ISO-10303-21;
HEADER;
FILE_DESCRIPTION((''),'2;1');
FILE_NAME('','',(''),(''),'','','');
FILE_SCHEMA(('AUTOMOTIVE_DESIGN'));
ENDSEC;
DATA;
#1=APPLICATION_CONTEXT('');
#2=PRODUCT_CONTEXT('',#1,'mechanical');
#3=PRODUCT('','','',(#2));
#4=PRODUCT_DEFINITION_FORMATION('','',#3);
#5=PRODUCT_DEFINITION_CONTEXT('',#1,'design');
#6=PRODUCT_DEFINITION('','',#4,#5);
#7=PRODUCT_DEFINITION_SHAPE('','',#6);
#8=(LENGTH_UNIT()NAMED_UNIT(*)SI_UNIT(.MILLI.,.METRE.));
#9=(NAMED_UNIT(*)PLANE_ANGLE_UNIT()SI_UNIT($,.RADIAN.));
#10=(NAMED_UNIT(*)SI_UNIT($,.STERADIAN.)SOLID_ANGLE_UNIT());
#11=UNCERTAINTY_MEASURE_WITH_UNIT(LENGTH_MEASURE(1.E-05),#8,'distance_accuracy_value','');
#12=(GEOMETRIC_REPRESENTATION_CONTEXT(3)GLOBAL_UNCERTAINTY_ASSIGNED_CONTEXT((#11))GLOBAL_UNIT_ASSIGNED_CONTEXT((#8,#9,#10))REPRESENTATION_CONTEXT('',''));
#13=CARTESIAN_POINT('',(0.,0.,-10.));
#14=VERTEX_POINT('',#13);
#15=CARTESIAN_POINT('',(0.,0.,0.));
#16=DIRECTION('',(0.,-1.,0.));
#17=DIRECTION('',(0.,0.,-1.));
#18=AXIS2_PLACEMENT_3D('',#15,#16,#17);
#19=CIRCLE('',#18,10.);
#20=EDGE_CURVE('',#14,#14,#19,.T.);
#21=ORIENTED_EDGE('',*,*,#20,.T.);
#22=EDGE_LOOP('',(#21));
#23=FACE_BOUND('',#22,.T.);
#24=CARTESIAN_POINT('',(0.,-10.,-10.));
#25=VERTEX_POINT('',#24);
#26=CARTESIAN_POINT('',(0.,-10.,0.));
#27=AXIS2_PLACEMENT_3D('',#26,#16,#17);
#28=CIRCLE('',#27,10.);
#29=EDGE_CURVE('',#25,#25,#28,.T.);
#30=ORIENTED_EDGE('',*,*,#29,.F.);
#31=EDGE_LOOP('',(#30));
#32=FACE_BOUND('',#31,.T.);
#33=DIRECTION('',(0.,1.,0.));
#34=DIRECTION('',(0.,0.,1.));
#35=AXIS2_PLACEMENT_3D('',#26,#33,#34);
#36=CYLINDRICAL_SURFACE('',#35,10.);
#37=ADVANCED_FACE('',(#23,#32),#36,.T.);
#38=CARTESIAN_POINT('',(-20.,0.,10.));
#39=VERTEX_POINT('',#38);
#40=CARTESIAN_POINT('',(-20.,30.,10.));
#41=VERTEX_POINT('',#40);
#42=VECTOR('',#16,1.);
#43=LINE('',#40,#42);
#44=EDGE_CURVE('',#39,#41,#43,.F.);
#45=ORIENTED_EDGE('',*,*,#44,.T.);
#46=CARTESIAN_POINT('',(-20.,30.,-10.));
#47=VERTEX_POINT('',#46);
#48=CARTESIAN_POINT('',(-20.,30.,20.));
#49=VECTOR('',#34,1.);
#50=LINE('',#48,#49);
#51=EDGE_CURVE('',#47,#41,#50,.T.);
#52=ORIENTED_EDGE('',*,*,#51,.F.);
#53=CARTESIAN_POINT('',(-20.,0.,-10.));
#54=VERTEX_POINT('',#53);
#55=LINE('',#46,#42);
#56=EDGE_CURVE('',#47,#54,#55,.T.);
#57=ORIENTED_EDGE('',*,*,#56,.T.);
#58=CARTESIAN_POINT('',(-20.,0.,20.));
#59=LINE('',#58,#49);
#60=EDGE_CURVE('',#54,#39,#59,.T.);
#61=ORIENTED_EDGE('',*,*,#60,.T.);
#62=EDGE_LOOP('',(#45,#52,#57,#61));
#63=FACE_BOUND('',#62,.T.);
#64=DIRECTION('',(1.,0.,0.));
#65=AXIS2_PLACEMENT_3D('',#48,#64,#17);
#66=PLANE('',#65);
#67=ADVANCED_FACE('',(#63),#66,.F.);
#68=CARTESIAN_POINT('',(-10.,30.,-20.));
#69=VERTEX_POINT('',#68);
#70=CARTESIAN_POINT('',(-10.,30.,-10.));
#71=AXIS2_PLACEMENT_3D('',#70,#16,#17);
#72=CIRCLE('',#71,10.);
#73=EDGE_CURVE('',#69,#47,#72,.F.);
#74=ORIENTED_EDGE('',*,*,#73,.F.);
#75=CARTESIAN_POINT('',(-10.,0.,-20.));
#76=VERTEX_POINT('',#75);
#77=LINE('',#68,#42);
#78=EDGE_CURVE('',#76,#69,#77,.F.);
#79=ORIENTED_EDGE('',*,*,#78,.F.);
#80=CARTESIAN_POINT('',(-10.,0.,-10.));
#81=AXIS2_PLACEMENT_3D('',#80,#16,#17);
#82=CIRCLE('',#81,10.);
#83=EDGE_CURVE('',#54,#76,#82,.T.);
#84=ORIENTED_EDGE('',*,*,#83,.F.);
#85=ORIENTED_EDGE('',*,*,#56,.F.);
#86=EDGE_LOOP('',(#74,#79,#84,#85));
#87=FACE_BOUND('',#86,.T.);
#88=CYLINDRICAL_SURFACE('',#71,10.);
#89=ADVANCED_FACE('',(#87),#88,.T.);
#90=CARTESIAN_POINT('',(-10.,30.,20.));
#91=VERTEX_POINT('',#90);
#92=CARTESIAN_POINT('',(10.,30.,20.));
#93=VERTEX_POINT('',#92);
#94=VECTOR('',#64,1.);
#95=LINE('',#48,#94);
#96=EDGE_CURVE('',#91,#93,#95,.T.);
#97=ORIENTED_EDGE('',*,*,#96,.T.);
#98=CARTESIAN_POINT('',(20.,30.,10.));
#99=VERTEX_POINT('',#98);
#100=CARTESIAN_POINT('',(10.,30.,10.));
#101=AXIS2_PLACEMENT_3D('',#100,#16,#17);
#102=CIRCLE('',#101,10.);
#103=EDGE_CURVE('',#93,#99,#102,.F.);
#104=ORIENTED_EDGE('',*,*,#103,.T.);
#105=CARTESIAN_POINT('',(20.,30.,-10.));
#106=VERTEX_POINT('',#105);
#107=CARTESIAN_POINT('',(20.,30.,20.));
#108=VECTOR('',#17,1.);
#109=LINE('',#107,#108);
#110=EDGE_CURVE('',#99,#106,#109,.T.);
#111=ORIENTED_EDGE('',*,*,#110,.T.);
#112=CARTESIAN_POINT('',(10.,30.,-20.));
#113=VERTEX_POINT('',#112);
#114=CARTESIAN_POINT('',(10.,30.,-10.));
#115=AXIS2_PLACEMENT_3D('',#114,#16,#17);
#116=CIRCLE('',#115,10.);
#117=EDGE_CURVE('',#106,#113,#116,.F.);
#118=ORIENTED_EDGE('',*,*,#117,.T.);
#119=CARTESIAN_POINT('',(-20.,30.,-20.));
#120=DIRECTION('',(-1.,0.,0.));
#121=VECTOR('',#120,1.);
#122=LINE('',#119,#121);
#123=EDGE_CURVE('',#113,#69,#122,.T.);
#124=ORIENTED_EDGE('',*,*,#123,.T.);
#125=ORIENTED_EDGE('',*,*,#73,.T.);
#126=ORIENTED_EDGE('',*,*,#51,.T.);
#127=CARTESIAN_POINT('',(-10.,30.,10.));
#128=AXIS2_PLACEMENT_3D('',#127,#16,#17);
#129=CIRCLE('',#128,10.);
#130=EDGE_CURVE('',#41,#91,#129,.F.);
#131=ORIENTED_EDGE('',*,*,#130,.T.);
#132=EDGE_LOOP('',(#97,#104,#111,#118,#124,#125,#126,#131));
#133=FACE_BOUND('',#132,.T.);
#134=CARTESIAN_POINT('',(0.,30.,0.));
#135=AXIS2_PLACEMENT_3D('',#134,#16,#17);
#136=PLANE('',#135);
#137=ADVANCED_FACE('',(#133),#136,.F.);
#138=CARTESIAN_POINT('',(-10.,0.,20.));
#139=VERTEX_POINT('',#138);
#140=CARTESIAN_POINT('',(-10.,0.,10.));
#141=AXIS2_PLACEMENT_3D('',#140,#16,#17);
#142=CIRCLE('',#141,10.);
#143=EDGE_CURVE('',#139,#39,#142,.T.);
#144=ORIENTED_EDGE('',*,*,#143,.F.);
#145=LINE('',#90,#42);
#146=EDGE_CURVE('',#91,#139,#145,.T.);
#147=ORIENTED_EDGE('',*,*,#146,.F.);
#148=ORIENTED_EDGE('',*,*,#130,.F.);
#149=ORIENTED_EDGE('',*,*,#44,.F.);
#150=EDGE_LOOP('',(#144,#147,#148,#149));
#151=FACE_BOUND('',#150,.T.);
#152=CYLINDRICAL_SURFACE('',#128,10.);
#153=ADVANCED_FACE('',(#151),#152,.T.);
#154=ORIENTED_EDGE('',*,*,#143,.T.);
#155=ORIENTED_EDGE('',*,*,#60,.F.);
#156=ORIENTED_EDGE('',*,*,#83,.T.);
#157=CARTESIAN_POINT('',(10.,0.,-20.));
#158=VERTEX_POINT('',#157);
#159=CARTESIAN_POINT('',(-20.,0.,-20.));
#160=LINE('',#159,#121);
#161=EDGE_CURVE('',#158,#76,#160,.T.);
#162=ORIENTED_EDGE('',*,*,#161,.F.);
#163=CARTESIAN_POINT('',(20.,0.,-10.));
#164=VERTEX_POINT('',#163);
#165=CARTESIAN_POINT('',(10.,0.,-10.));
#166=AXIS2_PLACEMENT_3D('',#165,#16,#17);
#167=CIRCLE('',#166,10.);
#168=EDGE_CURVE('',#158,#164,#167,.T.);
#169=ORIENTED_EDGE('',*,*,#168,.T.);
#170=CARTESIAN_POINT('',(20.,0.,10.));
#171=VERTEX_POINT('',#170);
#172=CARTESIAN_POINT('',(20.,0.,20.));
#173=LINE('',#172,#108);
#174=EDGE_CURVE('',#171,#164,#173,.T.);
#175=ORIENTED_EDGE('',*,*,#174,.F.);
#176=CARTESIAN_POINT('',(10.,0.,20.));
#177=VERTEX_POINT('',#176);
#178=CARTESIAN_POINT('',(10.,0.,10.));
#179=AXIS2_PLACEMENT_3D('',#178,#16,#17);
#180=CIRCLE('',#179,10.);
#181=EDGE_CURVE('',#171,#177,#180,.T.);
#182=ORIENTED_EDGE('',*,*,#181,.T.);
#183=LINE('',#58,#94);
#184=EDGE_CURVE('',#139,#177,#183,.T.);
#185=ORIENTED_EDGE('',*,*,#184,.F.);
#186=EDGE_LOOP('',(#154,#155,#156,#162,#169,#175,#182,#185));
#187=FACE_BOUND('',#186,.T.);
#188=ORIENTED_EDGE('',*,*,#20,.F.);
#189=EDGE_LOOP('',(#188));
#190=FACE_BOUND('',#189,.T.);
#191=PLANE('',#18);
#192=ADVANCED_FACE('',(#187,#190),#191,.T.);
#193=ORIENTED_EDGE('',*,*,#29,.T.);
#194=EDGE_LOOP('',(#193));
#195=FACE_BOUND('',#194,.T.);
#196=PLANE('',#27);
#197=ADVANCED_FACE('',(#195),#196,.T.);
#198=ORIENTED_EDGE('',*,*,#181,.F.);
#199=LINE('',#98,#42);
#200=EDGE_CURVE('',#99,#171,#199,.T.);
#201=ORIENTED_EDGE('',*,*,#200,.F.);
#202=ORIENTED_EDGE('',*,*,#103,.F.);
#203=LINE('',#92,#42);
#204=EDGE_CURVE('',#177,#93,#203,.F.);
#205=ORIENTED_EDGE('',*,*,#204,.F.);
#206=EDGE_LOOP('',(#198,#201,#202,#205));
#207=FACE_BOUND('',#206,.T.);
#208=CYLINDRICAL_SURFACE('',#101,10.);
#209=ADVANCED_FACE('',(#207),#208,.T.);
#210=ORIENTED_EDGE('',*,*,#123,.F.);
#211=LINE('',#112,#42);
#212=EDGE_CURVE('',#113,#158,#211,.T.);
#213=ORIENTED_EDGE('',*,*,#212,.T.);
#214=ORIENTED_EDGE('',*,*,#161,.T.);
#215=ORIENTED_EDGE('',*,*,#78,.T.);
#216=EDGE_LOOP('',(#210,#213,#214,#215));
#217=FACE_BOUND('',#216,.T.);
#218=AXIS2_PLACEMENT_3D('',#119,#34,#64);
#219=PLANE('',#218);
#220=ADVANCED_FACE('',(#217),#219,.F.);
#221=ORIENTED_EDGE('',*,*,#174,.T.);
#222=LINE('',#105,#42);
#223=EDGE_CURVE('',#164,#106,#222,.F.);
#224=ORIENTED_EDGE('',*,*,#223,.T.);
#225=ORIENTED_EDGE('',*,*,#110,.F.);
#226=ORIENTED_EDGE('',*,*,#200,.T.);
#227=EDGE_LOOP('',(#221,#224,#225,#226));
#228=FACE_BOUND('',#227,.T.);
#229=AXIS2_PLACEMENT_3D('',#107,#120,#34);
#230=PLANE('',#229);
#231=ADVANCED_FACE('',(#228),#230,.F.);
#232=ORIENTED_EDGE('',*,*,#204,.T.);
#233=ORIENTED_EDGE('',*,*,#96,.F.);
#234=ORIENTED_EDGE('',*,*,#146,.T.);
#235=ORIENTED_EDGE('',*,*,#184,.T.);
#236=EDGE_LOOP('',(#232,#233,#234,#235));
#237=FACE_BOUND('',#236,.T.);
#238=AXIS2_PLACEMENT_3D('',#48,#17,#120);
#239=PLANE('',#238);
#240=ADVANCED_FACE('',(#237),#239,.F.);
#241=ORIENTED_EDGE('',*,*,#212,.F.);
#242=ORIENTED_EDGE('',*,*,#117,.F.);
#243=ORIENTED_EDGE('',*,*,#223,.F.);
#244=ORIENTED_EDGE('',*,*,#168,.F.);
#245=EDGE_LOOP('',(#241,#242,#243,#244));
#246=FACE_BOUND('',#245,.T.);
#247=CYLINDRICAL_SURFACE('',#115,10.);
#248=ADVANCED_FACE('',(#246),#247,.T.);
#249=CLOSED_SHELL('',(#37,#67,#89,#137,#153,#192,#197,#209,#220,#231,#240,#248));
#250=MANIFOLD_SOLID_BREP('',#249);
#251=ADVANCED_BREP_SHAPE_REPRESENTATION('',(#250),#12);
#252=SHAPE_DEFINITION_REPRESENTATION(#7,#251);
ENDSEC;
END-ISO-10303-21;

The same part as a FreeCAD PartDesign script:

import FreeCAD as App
import Part
import Sketcher
Q = App.Units.Quantity


def edges_at(feature, points):
    """Names of the edges that pass closest to the given points."""
    edges = feature.Shape.Edges
    near = lambda p: min(range(len(edges)), key=lambda i: edges[i].distToShape(Part.Vertex(*p))[0])
    return sorted({f"Edge{near(p) + 1}" for p in points})


def add_polygon(sketch, points):
    """Adds a closed chain of lines whose ends are joined by coincident constraints."""
    first, n = sketch.GeometryCount, len(points)
    for a, b in zip(points, points[1:] + points[:1]):
        sketch.addGeometry(Part.LineSegment(App.Vector(*a, 0), App.Vector(*b, 0)), False)
    for i in range(n):
        sketch.addConstraint(Sketcher.Constraint("Coincident", first + i, 2, first + (i + 1) % n, 1))

doc = App.newDocument("Part")
body = doc.addObject("PartDesign::Body", "Body")

sketch1 = body.newObject("Sketcher::SketchObject", "Sketch")
sketch1.AttachmentSupport = (doc.getObject("XZ_Plane"), [""])
sketch1.MapMode = "FlatFace"
add_polygon(sketch1, [(-20, -20), (-20, 20), (20, 20), (20, -20)])
sketch1.addConstraint([
    Sketcher.Constraint("Vertical", 0),
    Sketcher.Constraint("Horizontal", 1),
    Sketcher.Constraint("Vertical", 2),
    Sketcher.Constraint("Horizontal", 3),
    Sketcher.Constraint("Symmetric", 0, 2, 2, 2, -1, 1),
    Sketcher.Constraint("Equal", 3, 0),
    Sketcher.Constraint("DistanceX", 1, 1, 1, 2, Q("40 mm")),
])
pad1 = body.newObject("PartDesign::Pad", "Pad")
pad1.Profile = sketch1
pad1.Length = 30
pad1.Reversed = True

sketch2 = body.newObject("Sketcher::SketchObject", "Sketch001")
sketch2.AttachmentSupport = (doc.getObject("XZ_Plane"), [""])
sketch2.MapMode = "FlatFace"
sketch2.addGeometry(Part.Circle(App.Vector(0, 0, 0), App.Vector(0, 0, 1), 10), False)
sketch2.addConstraint([
    Sketcher.Constraint("Coincident", 0, 3, -1, 1),
    Sketcher.Constraint("Diameter", 0, Q("20 mm")),
])
pad2 = body.newObject("PartDesign::Pad", "Pad001")
pad2.Profile = sketch2
pad2.Length = 10
doc.recompute()

fillet = body.newObject("PartDesign::Fillet", "Fillet")
fillet.Base = (pad2, edges_at(pad2, [
    (20, 15, 20),
    (-20, 15, 20),
    (-20, 15, -20),
    (20, 15, -20),
]))
fillet.Radius = 10

doc.recompute()
